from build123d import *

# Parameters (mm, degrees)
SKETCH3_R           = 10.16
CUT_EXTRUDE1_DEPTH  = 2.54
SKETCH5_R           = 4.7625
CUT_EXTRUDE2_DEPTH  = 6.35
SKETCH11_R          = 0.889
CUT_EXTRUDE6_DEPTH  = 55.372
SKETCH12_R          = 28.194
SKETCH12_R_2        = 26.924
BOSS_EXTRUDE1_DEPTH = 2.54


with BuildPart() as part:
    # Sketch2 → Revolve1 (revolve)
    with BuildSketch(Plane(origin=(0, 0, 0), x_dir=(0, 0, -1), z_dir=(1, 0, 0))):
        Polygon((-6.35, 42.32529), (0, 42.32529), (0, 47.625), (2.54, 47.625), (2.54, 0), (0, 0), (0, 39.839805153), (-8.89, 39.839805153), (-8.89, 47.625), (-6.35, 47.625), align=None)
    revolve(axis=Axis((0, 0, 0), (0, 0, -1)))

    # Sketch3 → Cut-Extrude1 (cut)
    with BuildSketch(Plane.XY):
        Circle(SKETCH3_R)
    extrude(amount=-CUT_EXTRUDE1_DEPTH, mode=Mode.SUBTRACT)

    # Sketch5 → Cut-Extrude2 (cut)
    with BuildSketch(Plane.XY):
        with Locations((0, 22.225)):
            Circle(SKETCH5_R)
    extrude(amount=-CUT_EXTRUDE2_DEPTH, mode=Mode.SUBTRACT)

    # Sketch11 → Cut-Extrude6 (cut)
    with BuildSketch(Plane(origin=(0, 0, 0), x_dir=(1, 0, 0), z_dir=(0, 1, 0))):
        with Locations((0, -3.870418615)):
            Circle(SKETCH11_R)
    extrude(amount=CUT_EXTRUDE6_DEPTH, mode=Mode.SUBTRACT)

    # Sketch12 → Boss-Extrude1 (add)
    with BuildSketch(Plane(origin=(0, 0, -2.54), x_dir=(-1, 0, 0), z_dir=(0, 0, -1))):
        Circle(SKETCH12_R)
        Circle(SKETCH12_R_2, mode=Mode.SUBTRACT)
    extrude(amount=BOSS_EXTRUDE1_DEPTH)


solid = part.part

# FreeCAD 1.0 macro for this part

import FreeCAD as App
import Part
import Sketcher
Q = App.Units.Quantity


def add_polygon(sketch, points):
    """Adds a closed chain of lines whose ends are joined by coincident constraints."""
    first, n = sketch.GeometryCount, len(points)
    for a, b in zip(points, points[1:] + points[:1]):
        sketch.addGeometry(Part.LineSegment(App.Vector(*a, 0), App.Vector(*b, 0)), False)
    for i in range(n):
        sketch.addConstraint(Sketcher.Constraint("Coincident", first + i, 2, first + (i + 1) % n, 1))

doc = App.newDocument("Part")
body = doc.addObject("PartDesign::Body", "Body")

sketch1 = body.newObject("Sketcher::SketchObject", "Sketch")
sketch1.AttachmentSupport = (doc.getObject("YZ_Plane"), [""])
sketch1.MapMode = "FlatFace"
add_polygon(sketch1, [(42.3, 0), (42.3, 6.3), (47.6, 6.3), (47.6, 8.9), (39.8, 8.9), (39.8, 0), (0, 0), (0, -2.5), (47.6, -2.5), (47.6, 0)])
sketch1.addConstraint([
    Sketcher.Constraint("Vertical", 0),
    Sketcher.Constraint("Horizontal", 1),
    Sketcher.Constraint("Vertical", 2),
    Sketcher.Constraint("Horizontal", 3),
    Sketcher.Constraint("Vertical", 4),
    Sketcher.Constraint("Horizontal", 5),
    Sketcher.Constraint("Vertical", 6),
    Sketcher.Constraint("Horizontal", 7),
    Sketcher.Constraint("Vertical", 8),
    Sketcher.Constraint("Horizontal", 9),
    Sketcher.Constraint("Coincident", 5, 2, -1, 1),
    Sketcher.Constraint("PointOnObject", 8, 2, -1),
    Sketcher.Constraint("Vertical", 2, 2, 7, 2),
    Sketcher.Constraint("Equal", 2, 6),
    Sketcher.Constraint("DistanceY", 2, 1, 2, 2, Q("0.1 in")),
    Sketcher.Constraint("DistanceY", 0, 1, 0, 2, Q("0.25 in")),
    Sketcher.Constraint("DistanceX", 7, 1, 7, 2, Q("1.875 in")),
    Sketcher.Constraint("DistanceX", 1, 1, 1, 2, 5.29971),
    Sketcher.Constraint("DistanceX", 3, 2, 3, 1, 7.785195),
])
revolution = body.newObject("PartDesign::Revolution", "Revolution")
revolution.Profile = sketch1
revolution.ReferenceAxis = (sketch1, ["V_Axis"])
revolution.Angle = 360

sketch2 = body.newObject("Sketcher::SketchObject", "Sketch001")
sketch2.AttachmentSupport = (doc.getObject("XY_Plane"), [""])
sketch2.MapMode = "FlatFace"
sketch2.addGeometry(Part.Circle(App.Vector(0, 0, 0), App.Vector(0, 0, 1), 10), False)
sketch2.addConstraint([
    Sketcher.Constraint("Coincident", 0, 3, -1, 1),
    Sketcher.Constraint("Diameter", 0, Q("0.8 in")),
])
pocket1 = body.newObject("PartDesign::Pocket", "Pocket")
pocket1.Profile = sketch2
pocket1.Length = Q("0.1 in")

sketch3 = body.newObject("Sketcher::SketchObject", "Sketch002")
sketch3.AttachmentSupport = (doc.getObject("XY_Plane"), [""])
sketch3.MapMode = "FlatFace"
sketch3.addGeometry(Part.Circle(App.Vector(0, 22.2, 0), App.Vector(0, 0, 1), 4.8), False)
sketch3.addConstraint([
    Sketcher.Constraint("PointOnObject", 0, 3, -2),
    Sketcher.Constraint("Diameter", 0, Q("0.375 in")),
    Sketcher.Constraint("DistanceY", -1, 1, 0, 3, Q("0.875 in")),
])
pocket2 = body.newObject("PartDesign::Pocket", "Pocket001")
pocket2.Profile = sketch3
pocket2.Length = Q("0.25 in")

sketch4 = body.newObject("Sketcher::SketchObject", "Sketch003")
sketch4.AttachmentSupport = (doc.getObject("XZ_Plane"), [""])
sketch4.MapMode = "FlatFace"
sketch4.addGeometry(Part.Circle(App.Vector(0, 3.9, 0), App.Vector(0, 0, 1), 0.9), False)
sketch4.addConstraint([
    Sketcher.Constraint("PointOnObject", 0, 3, -2),
    Sketcher.Constraint("Diameter", 0, Q("0.07 in")),
    Sketcher.Constraint("DistanceY", -1, 1, 0, 3, 3.870419),
])
pocket3 = body.newObject("PartDesign::Pocket", "Pocket002")
pocket3.Profile = sketch4
pocket3.Length = Q("2.18 in")

sketch5 = body.newObject("Sketcher::SketchObject", "Sketch004")
sketch5.AttachmentSupport = (doc.getObject("XY_Plane"), [""])
sketch5.MapMode = "FlatFace"
sketch5.AttachmentOffset = App.Placement(App.Vector(0, 0, -0.1 * 25.4), App.Rotation())
sketch5.addGeometry([
    Part.Circle(App.Vector(0, 0, 0), App.Vector(0, 0, 1), 28),
    Part.Circle(App.Vector(0, 0, 0), App.Vector(0, 0, 1), 27),
], False)
sketch5.addConstraint([
    Sketcher.Constraint("Coincident", 0, 3, -1, 1),
    Sketcher.Constraint("Coincident", 1, 3, -1, 1),
    Sketcher.Constraint("Diameter", 0, Q("2.22 in")),
    Sketcher.Constraint("Diameter", 1, Q("2.12 in")),
])
pad1 = body.newObject("PartDesign::Pad", "Pad")
pad1.Profile = sketch5
pad1.Length = Q("0.1 in")
pad1.Reversed = True

doc.recompute()
